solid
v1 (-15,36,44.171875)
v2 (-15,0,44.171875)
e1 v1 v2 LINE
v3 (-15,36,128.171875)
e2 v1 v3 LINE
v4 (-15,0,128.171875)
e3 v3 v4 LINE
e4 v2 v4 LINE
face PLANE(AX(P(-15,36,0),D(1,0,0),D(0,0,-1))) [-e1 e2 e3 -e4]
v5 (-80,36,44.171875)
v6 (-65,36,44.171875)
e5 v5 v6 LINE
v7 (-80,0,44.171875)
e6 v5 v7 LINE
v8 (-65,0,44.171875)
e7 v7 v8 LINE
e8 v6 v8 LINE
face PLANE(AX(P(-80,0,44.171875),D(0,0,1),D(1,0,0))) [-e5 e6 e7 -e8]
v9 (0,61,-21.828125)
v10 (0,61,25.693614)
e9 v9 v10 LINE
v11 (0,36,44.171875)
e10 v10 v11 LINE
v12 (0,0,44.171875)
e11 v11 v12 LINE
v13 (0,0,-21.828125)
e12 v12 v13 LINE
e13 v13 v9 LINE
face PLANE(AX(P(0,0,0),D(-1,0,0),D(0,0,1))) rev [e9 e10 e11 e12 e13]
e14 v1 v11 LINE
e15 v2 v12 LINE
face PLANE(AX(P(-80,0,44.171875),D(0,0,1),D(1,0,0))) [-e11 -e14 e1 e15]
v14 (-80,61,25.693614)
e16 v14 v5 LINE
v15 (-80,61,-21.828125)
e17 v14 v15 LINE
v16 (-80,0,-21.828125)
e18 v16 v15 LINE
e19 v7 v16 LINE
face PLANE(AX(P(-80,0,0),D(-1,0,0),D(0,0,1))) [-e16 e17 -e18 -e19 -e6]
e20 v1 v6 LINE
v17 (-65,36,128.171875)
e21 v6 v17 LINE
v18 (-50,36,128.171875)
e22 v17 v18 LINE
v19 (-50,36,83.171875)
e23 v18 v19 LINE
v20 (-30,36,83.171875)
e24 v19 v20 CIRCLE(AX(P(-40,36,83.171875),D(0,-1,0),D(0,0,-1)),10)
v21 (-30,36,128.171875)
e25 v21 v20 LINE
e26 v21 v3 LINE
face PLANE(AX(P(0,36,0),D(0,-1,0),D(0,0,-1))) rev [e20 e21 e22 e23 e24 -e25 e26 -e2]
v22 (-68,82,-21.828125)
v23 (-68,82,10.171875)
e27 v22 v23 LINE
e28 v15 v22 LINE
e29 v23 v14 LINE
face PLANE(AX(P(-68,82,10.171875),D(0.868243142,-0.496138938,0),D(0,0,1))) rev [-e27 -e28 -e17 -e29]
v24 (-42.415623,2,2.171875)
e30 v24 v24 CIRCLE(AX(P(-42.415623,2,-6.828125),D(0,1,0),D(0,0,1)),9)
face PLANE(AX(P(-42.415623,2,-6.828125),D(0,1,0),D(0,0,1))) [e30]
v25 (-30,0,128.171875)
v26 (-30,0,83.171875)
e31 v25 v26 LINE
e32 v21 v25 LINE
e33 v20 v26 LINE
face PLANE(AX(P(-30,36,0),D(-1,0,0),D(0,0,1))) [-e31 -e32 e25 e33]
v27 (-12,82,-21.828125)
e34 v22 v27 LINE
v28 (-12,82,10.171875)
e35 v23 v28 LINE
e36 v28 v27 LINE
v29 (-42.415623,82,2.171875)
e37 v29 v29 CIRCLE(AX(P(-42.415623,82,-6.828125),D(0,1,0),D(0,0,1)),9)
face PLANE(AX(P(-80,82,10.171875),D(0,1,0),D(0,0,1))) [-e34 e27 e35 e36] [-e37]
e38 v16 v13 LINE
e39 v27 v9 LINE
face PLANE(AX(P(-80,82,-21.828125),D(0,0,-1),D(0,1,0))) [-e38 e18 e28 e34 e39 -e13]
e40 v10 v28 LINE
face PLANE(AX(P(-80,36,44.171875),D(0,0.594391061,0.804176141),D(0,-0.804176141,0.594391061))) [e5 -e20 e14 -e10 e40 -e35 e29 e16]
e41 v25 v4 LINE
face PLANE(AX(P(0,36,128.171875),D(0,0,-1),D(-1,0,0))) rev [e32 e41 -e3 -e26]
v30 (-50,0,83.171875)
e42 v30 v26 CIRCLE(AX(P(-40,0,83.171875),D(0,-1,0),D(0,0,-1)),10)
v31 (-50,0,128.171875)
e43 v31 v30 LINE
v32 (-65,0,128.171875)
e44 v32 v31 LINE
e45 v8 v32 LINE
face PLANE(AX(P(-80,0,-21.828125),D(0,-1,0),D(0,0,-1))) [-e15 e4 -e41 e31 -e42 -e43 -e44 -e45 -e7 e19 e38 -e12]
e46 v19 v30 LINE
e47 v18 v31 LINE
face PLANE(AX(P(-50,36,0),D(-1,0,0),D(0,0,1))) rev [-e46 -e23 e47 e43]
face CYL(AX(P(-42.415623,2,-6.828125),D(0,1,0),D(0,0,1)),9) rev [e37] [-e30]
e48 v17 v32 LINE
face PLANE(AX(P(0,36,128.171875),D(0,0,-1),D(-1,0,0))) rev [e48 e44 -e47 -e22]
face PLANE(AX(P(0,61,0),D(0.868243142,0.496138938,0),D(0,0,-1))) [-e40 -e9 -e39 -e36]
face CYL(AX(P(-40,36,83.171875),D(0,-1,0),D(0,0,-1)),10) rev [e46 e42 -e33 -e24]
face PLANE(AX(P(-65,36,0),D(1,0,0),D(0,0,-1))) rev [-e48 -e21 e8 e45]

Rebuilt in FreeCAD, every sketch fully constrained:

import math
import FreeCAD as App
import Part
import Sketcher
from FreeCAD import Vector
Q = App.Units.Quantity


def edges_at(feature, points):
    """Names of the edges that pass closest to the given points."""
    edges = feature.Shape.Edges
    near = lambda p: min(range(len(edges)), key=lambda i: edges[i].distToShape(Part.Vertex(*p))[0])
    return sorted({f"Edge{near(p) + 1}" for p in points})


def add_polygon(sketch, points):
    """Adds a closed chain of lines whose ends are joined by coincident constraints."""
    first, n = sketch.GeometryCount, len(points)
    for a, b in zip(points, points[1:] + points[:1]):
        sketch.addGeometry(Part.LineSegment(App.Vector(*a, 0), App.Vector(*b, 0)), False)
    for i in range(n):
        sketch.addConstraint(Sketcher.Constraint("Coincident", first + i, 2, first + (i + 1) % n, 1))

doc = App.newDocument("Part")
body = doc.addObject("PartDesign::Body", "Body")

# Sketch on YZ plane
sketch1 = body.newObject("Sketcher::SketchObject", "Sketch")
sketch1.AttachmentSupport = (doc.getObject("YZ_Plane"), [""])
sketch1.MapMode = "FlatFace"
add_polygon(sketch1, [(36, 44), (0, 44), (0, -22), (82, -22), (82, 10)])  # lines 0-4
sketch1.addConstraint([
    Sketcher.Constraint("Horizontal", 0),
    Sketcher.Constraint("Vertical", 1),
    Sketcher.Constraint("Horizontal", 2),
    Sketcher.Constraint("Vertical", 3),
    Sketcher.Constraint("PointOnObject", 0, 2, -2),
    Sketcher.Constraint("DistanceX", 0, 2, 0, 1, Q("36 mm")),
    Sketcher.Constraint("DistanceX", 2, 1, 2, 2, Q("82 mm")),
    Sketcher.Constraint("DistanceY", 1, 2, 1, 1, Q("66 mm")),
    Sketcher.Constraint("DistanceY", 3, 1, 3, 2, Q("32 mm")),
    Sketcher.Constraint("DistanceY", -1, 1, 0, 2, Q("44.171875 mm")),
])
pad1 = body.newObject("PartDesign::Pad", "Pad")
pad1.Profile = sketch1
pad1.Length = 80
pad1.Reversed = True
doc.recompute()

chamfer = body.newObject("PartDesign::Chamfer", "Chamfer")
chamfer.Base = (pad1, edges_at(pad1, [(0, 82, -5.828)]))
chamfer.ChamferType = "Two distances"
chamfer.Size = 12
chamfer.Size2 = 21
doc.recompute()

chamfer2 = body.newObject("PartDesign::Chamfer", "Chamfer001")
chamfer2.Base = (chamfer, edges_at(chamfer, [(-80, 82, -5.828)]))
chamfer2.ChamferType = "Two distances"
chamfer2.Size = 12
chamfer2.Size2 = 21

# Sketch on XZ plane
sketch2 = body.newObject("Sketcher::SketchObject", "Sketch001")
sketch2.AttachmentSupport = (doc.getObject("XZ_Plane"), [""])
sketch2.MapMode = "FlatFace"
sketch2.AttachmentOffset = App.Placement(Vector(0, 0, -82), App.Rotation())
sketch2.addGeometry(Part.Circle(Vector(-42, -7, 0), Vector(0, 0, 1), 9), False)
sketch2.addConstraint([
    Sketcher.Constraint("Diameter", 0, Q("18 mm")),
    Sketcher.Constraint("DistanceX", 0, 3, -1, 1, Q("42.415623 mm")),
    Sketcher.Constraint("DistanceY", 0, 3, -1, 1, Q("6.828125 mm")),
])
pocket1 = body.newObject("PartDesign::Pocket", "Pocket")
pocket1.Profile = sketch2
pocket1.Length = 80
pocket1.Reversed = True

# Sketch on XZ plane
sketch3 = body.newObject("Sketcher::SketchObject", "Sketch002")
sketch3.AttachmentSupport = (doc.getObject("XZ_Plane"), [""])
sketch3.MapMode = "FlatFace"
sketch3.addGeometry([
    Part.LineSegment(Vector(-65, 128, 0), Vector(-65, 44, 0)),  # 0
    Part.LineSegment(Vector(-65, 44, 0), Vector(-15, 44, 0)),  # 1
    Part.LineSegment(Vector(-15, 44, 0), Vector(-15, 128, 0)),  # 2
    Part.LineSegment(Vector(-15, 128, 0), Vector(-30, 128, 0)),  # 3
    Part.LineSegment(Vector(-30, 128, 0), Vector(-30, 83, 0)),  # 4
    Part.ArcOfCircle(Part.Circle(Vector(-40, 83, 0), Vector(0, 0, 1), 10), math.radians(180), math.radians(360)),  # 5
    Part.LineSegment(Vector(-50, 83, 0), Vector(-50, 128, 0)),  # 6
    Part.LineSegment(Vector(-50, 128, 0), Vector(-65, 128, 0)),  # 7
], False)
sketch3.addConstraint([
    Sketcher.Constraint("Coincident", 0, 2, 1, 1),
    Sketcher.Constraint("Coincident", 1, 2, 2, 1),
    Sketcher.Constraint("Coincident", 2, 2, 3, 1),
    Sketcher.Constraint("Coincident", 3, 2, 4, 1),
    Sketcher.Constraint("Tangent", 4, 2, 5, 2),
    Sketcher.Constraint("Tangent", 5, 1, 6, 1),
    Sketcher.Constraint("Coincident", 6, 2, 7, 1),
    Sketcher.Constraint("Coincident", 7, 2, 0, 1),
    Sketcher.Constraint("Vertical", 0),
    Sketcher.Constraint("Horizontal", 1),
    Sketcher.Constraint("Vertical", 2),
    Sketcher.Constraint("Horizontal", 3),
    Sketcher.Constraint("Vertical", 4),
    Sketcher.Constraint("Vertical", 6),
    Sketcher.Constraint("Horizontal", 7),
    Sketcher.Constraint("Horizontal", 3, 2, 6, 2),
    Sketcher.Constraint("Equal", 3, 7),
    Sketcher.Constraint("Radius", 5, Q("10 mm")),
    Sketcher.Constraint("DistanceX", 1, 1, 1, 2, Q("50 mm")),
    Sketcher.Constraint("DistanceY", 0, 2, 0, 1, Q("84 mm")),
    Sketcher.Constraint("DistanceY", 4, 2, 4, 1, Q("45 mm")),
    Sketcher.Constraint("DistanceX", 5, 3, -1, 1, Q("40 mm")),
    Sketcher.Constraint("DistanceY", -1, 1, 5, 3, Q("83.171875 mm")),
])
pad2 = body.newObject("PartDesign::Pad", "Pad001")
pad2.Profile = sketch3
pad2.Length = 36
pad2.Reversed = True

doc.recompute()
